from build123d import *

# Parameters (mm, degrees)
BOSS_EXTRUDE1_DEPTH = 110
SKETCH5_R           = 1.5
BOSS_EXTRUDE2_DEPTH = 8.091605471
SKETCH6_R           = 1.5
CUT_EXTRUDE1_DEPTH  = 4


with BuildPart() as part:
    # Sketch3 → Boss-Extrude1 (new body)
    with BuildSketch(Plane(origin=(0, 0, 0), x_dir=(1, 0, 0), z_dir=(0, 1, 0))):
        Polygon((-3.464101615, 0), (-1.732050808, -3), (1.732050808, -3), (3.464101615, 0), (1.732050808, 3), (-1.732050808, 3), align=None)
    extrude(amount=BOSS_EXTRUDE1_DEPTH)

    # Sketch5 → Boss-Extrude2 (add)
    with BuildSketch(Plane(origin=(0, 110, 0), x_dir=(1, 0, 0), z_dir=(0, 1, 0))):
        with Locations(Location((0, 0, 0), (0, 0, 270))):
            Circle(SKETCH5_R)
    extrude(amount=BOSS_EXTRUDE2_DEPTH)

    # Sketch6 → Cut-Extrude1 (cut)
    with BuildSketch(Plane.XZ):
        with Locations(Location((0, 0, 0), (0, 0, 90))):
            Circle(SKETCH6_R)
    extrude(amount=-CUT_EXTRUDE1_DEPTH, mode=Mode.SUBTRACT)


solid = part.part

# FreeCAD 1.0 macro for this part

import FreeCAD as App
import Part
import Sketcher
Q = App.Units.Quantity

doc = App.newDocument("Part")
body = doc.addObject("PartDesign::Body", "Body")

sketch1 = body.newObject("Sketcher::SketchObject", "Sketch")
sketch1.AttachmentSupport = (doc.getObject("XZ_Plane"), [""])
sketch1.MapMode = "FlatFace"
sketch1.addGeometry([
    Part.LineSegment(App.Vector(-3.5, 0, 0), App.Vector(-1.7, 3, 0)),
    Part.LineSegment(App.Vector(-1.7, 3, 0), App.Vector(1.7, 3, 0)),
    Part.LineSegment(App.Vector(1.7, 3, 0), App.Vector(3.5, 0, 0)),
    Part.LineSegment(App.Vector(3.5, 0, 0), App.Vector(1.7, -3, 0)),
    Part.LineSegment(App.Vector(1.7, -3, 0), App.Vector(-1.7, -3, 0)),
    Part.LineSegment(App.Vector(-1.7, -3, 0), App.Vector(-3.5, 0, 0)),
], False)
sketch1.addConstraint([
    Sketcher.Constraint("Coincident", 0, 2, 1, 1),
    Sketcher.Constraint("Coincident", 1, 2, 2, 1),
    Sketcher.Constraint("Coincident", 2, 2, 3, 1),
    Sketcher.Constraint("Coincident", 3, 2, 4, 1),
    Sketcher.Constraint("Coincident", 4, 2, 5, 1),
    Sketcher.Constraint("Coincident", 5, 2, 0, 1),
    Sketcher.Constraint("Horizontal", 1),
    Sketcher.Constraint("Horizontal", 4),
    Sketcher.Constraint("Symmetric", 0, 2, 3, 2, -1, 1),
    Sketcher.Constraint("Symmetric", 2, 2, 5, 2, -1, 1),
    Sketcher.Constraint("PointOnObject", 2, 2, -1),
    Sketcher.Constraint("Parallel", 2, 5),
    Sketcher.Constraint("Vertical", 1, 2, 3, 2),
    Sketcher.Constraint("Angle", 0, Q("60 deg")),
    Sketcher.Constraint("DistanceY", -1, 1, 0, 2, 3.0),
    Sketcher.Constraint("DistanceX", 1, 1, 1, 2, 3.464102),
])
pad1 = body.newObject("PartDesign::Pad", "Pad")
pad1.Profile = sketch1
pad1.Length = 110
pad1.Reversed = True

sketch2 = body.newObject("Sketcher::SketchObject", "Sketch001")
sketch2.AttachmentSupport = (doc.getObject("XZ_Plane"), [""])
sketch2.MapMode = "FlatFace"
sketch2.AttachmentOffset = App.Placement(App.Vector(0, 0, -110), App.Rotation())
sketch2.addGeometry(Part.Circle(App.Vector(0, 0, 0), App.Vector(0, 0, 1), 1.5), False)
sketch2.addConstraint([
    Sketcher.Constraint("Coincident", 0, 3, -1, 1),
    Sketcher.Constraint("Diameter", 0, 3.0),
])
pad2 = body.newObject("PartDesign::Pad", "Pad001")
pad2.Profile = sketch2
pad2.Length = 8.091605
pad2.Reversed = True

sketch3 = body.newObject("Sketcher::SketchObject", "Sketch002")
sketch3.AttachmentSupport = (doc.getObject("XZ_Plane"), [""])
sketch3.MapMode = "FlatFace"
sketch3.addGeometry(Part.Circle(App.Vector(0, 0, 0), App.Vector(0, 0, 1), 1.5), False)
sketch3.addConstraint([
    Sketcher.Constraint("Coincident", 0, 3, -1, 1),
    Sketcher.Constraint("Diameter", 0, 3.0),
])
pocket1 = body.newObject("PartDesign::Pocket", "Pocket")
pocket1.Profile = sketch3
pocket1.Length = 4

doc.recompute()
